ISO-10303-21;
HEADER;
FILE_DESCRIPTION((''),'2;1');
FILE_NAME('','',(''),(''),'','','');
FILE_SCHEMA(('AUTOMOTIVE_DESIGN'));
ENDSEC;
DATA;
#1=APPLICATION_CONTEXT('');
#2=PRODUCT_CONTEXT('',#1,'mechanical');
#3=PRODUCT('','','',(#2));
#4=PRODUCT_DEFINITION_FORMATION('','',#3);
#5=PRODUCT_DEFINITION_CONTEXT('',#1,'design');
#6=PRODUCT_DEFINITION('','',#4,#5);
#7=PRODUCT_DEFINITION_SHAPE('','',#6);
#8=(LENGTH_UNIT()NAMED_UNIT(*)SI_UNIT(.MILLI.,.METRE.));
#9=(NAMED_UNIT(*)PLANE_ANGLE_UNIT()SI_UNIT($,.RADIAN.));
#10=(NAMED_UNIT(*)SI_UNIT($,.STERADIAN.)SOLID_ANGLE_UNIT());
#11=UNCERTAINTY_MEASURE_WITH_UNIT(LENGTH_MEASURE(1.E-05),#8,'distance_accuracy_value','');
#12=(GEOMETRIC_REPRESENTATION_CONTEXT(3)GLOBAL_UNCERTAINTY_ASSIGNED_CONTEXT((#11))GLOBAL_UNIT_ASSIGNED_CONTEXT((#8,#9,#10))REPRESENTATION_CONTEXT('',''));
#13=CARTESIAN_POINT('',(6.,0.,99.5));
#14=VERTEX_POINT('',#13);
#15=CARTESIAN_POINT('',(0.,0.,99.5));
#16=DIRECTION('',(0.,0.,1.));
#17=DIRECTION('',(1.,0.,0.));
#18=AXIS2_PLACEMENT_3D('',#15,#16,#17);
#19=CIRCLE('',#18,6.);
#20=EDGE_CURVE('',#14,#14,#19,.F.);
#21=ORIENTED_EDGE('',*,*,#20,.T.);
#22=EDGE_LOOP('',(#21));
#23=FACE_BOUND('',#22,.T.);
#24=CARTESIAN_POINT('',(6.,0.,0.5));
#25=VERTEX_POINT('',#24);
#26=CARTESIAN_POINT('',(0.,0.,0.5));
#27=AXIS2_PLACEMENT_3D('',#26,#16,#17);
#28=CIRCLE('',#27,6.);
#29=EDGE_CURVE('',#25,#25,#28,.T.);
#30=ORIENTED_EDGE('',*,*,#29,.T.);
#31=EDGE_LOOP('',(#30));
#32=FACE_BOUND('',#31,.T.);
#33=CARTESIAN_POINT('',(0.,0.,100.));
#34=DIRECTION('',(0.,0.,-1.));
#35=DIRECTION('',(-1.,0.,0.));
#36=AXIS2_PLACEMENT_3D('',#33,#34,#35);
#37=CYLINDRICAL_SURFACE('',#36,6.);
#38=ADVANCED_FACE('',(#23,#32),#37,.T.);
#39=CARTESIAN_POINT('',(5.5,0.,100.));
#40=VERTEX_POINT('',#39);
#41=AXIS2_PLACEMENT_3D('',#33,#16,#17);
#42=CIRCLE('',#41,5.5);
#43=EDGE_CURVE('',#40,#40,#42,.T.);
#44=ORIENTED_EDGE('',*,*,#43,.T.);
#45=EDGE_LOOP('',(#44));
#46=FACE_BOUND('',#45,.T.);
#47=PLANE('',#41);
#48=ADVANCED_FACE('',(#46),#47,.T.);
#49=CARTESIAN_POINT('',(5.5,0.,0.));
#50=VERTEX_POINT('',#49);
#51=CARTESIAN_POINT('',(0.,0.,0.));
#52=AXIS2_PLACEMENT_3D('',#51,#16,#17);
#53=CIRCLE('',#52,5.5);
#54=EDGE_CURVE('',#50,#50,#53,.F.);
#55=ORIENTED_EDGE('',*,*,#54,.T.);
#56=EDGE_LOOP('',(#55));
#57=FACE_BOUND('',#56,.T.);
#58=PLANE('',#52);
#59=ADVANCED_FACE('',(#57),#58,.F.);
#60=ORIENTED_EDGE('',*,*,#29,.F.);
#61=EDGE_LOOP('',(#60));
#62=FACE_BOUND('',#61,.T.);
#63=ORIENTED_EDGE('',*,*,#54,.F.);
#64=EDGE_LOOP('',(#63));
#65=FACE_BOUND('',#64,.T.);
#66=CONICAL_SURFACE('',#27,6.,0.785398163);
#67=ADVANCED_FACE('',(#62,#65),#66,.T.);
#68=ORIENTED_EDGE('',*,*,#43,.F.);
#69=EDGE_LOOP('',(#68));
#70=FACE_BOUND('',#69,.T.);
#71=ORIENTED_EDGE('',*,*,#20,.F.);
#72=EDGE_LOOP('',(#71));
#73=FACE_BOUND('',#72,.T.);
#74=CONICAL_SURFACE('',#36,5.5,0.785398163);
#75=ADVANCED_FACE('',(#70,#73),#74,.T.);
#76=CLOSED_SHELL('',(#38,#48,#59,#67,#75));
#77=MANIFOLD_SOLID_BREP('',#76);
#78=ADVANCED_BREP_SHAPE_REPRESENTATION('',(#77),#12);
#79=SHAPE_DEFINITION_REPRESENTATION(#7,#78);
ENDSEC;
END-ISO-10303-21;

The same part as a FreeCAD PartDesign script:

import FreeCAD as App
import Part
import Sketcher


def edges_at(feature, points):
    """Names of the edges that pass closest to the given points."""
    edges = feature.Shape.Edges
    near = lambda p: min(range(len(edges)), key=lambda i: edges[i].distToShape(Part.Vertex(*p))[0])
    return sorted({f"Edge{near(p) + 1}" for p in points})

doc = App.newDocument("Part")
body = doc.addObject("PartDesign::Body", "Body")

# Sketch on XY plane
sketch1 = body.newObject("Sketcher::SketchObject", "Sketch")
sketch1.AttachmentSupport = (doc.getObject("XY_Plane"), [""])
sketch1.MapMode = "FlatFace"
sketch1.addGeometry(Part.Circle(App.Vector(0, 0, 0), App.Vector(0, 0, 1), 6), False)
sketch1.addConstraint([
    Sketcher.Constraint("Coincident", 0, 3, -1, 1),
    Sketcher.Constraint("Diameter", 0, 12.0),
])
pad1 = body.newObject("PartDesign::Pad", "Pad")
pad1.Profile = sketch1
pad1.Length = 100
doc.recompute()

chamfer = body.newObject("PartDesign::Chamfer", "Chamfer")
chamfer.Base = (pad1, edges_at(pad1, [(-6, 0, 0), (-6, 0, 100)]))
chamfer.Size = 0.5

doc.recompute()
